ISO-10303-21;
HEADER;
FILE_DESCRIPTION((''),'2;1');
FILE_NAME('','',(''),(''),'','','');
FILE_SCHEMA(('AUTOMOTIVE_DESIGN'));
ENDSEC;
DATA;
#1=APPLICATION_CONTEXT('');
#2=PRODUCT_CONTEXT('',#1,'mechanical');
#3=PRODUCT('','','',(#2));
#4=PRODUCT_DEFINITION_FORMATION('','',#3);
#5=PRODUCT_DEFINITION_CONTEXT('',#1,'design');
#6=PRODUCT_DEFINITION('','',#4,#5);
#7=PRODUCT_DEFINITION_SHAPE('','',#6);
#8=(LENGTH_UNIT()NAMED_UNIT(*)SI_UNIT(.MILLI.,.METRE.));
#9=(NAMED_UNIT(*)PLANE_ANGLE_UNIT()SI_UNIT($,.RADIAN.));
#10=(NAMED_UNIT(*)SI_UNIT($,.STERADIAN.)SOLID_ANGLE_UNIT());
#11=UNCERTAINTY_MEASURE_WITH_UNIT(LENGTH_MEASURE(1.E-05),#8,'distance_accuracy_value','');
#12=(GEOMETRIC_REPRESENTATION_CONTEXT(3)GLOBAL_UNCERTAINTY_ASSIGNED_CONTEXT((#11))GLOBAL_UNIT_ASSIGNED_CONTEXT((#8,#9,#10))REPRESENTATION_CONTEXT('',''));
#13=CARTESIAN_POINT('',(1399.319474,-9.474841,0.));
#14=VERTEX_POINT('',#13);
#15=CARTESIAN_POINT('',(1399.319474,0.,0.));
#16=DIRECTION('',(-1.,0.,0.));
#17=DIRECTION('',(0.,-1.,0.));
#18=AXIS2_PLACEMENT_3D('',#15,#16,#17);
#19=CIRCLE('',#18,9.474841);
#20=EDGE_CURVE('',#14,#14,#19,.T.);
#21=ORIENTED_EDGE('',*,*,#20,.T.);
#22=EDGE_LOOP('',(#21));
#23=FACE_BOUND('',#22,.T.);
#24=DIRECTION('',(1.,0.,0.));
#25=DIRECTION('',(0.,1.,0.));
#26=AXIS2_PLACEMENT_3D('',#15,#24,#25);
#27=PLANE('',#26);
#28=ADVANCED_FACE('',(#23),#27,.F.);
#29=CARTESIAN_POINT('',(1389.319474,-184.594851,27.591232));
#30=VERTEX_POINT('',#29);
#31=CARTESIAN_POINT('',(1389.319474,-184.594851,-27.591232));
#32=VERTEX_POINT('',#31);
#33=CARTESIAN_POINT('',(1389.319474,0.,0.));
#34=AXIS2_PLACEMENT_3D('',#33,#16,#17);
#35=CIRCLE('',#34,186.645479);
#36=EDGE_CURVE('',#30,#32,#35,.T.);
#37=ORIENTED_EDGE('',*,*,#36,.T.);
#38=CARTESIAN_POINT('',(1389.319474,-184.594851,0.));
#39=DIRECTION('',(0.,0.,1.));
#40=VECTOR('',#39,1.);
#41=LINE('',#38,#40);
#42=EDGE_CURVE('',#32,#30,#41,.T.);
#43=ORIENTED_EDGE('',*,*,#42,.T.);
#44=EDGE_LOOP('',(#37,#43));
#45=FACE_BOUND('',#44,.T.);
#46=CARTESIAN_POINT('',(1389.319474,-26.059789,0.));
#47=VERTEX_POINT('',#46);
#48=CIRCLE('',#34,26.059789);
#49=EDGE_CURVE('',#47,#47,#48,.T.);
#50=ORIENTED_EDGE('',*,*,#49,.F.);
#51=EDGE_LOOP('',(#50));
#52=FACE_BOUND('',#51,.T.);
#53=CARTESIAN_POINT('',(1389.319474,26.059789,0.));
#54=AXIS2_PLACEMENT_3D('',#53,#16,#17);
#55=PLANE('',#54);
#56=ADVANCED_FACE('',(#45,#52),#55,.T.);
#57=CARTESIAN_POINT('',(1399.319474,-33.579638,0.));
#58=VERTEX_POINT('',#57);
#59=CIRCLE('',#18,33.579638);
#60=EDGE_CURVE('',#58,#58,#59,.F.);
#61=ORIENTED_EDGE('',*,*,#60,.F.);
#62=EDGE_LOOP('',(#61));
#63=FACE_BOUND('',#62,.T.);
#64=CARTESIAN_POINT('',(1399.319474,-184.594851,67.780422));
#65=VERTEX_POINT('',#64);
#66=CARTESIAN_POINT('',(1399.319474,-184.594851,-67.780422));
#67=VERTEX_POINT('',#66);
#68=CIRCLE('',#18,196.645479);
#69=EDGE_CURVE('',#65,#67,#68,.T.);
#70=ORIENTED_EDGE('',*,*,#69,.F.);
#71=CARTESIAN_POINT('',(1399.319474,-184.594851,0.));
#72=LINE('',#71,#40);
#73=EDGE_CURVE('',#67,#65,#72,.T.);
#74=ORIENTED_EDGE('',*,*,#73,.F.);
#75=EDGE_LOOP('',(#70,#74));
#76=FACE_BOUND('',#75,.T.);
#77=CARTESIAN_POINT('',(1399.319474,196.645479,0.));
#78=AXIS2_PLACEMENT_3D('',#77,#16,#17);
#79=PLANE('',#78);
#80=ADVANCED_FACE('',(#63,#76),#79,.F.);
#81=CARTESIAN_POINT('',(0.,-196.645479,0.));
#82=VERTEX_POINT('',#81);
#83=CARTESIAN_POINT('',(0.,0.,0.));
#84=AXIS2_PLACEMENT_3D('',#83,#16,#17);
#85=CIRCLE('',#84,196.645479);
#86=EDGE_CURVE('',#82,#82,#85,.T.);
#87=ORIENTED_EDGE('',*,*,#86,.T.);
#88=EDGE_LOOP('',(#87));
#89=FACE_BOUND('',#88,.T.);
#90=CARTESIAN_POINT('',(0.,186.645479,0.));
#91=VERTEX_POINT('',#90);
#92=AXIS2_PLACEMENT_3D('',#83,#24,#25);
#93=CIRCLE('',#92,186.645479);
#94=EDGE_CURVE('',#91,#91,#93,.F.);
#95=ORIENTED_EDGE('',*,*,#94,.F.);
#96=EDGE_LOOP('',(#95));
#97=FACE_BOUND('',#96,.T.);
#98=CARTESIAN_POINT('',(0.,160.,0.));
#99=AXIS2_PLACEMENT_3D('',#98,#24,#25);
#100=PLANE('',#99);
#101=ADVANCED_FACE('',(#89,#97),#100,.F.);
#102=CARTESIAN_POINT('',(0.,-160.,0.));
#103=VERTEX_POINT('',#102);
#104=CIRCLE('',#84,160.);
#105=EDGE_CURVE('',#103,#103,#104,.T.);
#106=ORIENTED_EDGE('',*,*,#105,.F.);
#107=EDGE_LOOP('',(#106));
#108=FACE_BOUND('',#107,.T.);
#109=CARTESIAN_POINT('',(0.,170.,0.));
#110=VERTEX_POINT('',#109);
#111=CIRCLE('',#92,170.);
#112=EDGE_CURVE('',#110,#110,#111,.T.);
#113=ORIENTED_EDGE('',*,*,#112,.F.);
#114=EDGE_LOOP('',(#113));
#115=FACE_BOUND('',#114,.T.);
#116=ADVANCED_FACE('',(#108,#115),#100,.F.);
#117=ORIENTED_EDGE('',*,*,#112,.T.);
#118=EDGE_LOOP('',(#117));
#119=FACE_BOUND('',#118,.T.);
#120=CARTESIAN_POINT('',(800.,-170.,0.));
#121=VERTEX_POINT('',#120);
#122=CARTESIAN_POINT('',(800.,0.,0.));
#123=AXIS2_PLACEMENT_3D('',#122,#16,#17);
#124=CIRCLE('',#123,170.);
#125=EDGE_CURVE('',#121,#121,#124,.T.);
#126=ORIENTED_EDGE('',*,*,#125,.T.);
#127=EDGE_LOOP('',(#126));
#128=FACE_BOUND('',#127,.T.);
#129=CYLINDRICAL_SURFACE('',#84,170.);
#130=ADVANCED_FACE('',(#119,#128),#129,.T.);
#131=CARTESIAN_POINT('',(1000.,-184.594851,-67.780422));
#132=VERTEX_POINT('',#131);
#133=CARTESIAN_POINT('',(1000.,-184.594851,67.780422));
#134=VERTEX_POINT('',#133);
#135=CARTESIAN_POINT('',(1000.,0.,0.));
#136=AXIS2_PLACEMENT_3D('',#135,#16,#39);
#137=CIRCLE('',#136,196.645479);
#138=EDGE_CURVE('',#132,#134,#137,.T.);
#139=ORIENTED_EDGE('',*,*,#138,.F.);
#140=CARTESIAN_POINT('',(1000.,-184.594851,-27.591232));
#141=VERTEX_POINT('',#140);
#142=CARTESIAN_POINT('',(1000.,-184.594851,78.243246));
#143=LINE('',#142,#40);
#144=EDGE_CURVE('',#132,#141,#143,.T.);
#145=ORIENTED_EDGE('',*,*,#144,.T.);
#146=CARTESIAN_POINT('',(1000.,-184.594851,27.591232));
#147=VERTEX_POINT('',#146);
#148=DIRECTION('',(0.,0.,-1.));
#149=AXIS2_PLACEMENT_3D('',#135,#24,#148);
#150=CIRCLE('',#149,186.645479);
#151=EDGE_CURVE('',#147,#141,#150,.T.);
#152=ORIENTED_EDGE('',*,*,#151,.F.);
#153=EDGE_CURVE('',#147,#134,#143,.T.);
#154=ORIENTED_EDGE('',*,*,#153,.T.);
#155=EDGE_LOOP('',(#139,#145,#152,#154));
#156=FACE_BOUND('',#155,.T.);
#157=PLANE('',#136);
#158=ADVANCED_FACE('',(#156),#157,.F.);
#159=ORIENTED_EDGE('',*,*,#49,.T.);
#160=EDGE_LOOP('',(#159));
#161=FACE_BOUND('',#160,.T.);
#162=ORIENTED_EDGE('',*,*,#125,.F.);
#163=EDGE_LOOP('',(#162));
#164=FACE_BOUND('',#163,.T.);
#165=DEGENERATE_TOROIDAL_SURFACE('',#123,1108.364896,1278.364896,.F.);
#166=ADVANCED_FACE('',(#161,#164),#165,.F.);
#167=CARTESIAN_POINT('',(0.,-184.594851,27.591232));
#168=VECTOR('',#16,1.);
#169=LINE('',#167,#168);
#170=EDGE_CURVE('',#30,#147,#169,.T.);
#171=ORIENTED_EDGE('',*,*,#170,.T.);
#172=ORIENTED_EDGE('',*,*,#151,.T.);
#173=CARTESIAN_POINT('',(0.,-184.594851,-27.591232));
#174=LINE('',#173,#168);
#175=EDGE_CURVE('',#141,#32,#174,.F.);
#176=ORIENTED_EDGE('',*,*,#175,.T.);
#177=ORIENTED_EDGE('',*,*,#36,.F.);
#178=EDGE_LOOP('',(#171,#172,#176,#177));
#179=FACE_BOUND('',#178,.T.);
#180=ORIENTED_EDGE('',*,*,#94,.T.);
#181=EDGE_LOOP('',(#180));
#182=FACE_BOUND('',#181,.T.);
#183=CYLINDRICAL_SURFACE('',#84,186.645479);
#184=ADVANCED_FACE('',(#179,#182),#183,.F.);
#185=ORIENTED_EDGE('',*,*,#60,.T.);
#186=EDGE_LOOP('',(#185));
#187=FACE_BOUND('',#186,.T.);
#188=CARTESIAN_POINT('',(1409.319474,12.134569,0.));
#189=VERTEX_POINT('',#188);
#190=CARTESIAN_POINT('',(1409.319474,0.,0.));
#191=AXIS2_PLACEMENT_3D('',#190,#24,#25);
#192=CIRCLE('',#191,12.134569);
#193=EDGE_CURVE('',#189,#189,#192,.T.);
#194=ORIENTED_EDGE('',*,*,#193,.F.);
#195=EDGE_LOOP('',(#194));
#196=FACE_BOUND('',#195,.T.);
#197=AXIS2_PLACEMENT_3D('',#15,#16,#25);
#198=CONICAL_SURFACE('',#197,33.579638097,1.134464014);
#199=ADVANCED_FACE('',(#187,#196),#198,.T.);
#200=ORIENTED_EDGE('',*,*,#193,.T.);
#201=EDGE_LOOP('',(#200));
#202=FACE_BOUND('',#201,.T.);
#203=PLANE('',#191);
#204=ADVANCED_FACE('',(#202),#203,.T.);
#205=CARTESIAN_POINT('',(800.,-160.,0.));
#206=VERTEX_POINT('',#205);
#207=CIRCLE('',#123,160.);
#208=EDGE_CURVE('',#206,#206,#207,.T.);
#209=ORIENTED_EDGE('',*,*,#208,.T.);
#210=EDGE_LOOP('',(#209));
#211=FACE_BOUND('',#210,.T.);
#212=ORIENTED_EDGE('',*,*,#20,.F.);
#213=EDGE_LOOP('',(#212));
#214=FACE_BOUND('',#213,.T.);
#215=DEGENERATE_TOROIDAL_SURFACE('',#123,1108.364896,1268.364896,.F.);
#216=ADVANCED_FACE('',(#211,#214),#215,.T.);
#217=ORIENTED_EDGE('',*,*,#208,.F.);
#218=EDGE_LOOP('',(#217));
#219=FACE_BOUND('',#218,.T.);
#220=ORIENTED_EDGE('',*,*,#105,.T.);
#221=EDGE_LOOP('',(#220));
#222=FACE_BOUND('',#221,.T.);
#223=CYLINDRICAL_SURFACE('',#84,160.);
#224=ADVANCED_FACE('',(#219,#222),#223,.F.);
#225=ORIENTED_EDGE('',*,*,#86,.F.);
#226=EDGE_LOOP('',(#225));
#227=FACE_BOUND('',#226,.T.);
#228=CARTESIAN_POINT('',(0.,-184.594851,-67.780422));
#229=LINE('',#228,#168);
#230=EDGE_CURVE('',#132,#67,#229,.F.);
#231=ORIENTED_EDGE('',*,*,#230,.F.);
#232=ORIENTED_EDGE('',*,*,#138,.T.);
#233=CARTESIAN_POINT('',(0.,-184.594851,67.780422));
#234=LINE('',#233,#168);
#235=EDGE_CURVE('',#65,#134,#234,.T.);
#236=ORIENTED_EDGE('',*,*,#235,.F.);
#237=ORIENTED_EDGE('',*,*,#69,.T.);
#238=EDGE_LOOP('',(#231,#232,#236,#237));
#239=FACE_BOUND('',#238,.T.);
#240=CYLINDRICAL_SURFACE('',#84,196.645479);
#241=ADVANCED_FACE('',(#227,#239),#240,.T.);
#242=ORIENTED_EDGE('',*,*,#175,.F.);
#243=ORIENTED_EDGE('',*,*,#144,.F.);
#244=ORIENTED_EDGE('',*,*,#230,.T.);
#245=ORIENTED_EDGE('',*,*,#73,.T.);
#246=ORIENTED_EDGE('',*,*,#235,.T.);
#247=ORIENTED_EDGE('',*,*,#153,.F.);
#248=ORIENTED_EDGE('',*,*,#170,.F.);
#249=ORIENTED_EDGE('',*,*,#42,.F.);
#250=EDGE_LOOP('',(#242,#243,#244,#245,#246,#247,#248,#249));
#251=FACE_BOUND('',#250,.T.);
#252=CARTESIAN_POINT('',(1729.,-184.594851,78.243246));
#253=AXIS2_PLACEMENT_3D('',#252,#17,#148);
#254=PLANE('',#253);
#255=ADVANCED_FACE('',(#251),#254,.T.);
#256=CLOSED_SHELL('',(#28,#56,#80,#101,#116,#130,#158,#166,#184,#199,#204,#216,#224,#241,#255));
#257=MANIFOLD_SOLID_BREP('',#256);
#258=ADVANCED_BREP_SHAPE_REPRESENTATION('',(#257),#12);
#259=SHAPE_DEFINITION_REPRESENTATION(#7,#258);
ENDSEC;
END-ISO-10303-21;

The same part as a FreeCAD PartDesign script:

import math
import FreeCAD as App
import Part
import Sketcher

V = App.Vector
Q = App.Units.Quantity


def add_polygon(sketch, points):
    """Adds a closed chain of lines whose ends are joined by coincident constraints."""
    first, n = sketch.GeometryCount, len(points)
    for a, b in zip(points, points[1:] + points[:1]):
        sketch.addGeometry(Part.LineSegment(App.Vector(*a, 0), App.Vector(*b, 0)), False)
    for i in range(n):
        sketch.addConstraint(Sketcher.Constraint("Coincident", first + i, 2, first + (i + 1) % n, 1))

doc = App.newDocument("Part")
params = doc.addObject("Spreadsheet::Sheet", "Params")
for row, (alias, value) in enumerate([
    ("sketch1_width", "800 mm"),
    ("revolution_angle", "360 deg"),
    ("groove_angle", "360 deg"),
    ("pad1_length", "10 mm"),
    ("pad1_taper", "-65 deg"),
    ("pocket1_length", "436 mm"),
    ("pocket2_length", "729 mm"),
], start=1):
    params.set(f"A{row}", alias)
    params.set(f"B{row}", "=" + value)
    params.setAlias(f"B{row}", alias)

body = doc.addObject("PartDesign::Body", "Body")

# Sketch on XY plane
sketch1 = doc.addObject("Sketcher::SketchObject", "Sketch")
body.addObject(sketch1)
sketch1.AttachmentSupport = (doc.XY_Plane, [""])
sketch1.MapMode = "FlatFace"
sketch1.addGeometry([
    Part.LineSegment(V(0, 160, 0), V(800, 160, 0)),  # 0
    Part.ArcOfCircle(Part.Circle(V(800, -1108.364896, 0), V(0, 0, 1), 1268.364896), math.radians(61.802426), math.radians(90)),  # 1
    Part.LineSegment(V(1399.319474, 9.474841, 0), V(1399.319474, 196.645479, 0)),  # 2
    Part.LineSegment(V(1399.319474, 196.645479, 0), V(0, 196.645479, 0)),  # 3
    Part.LineSegment(V(0, 196.645479, 0), V(0, 160, 0)),  # 4
], False)
sketch1.addConstraint([
    Sketcher.Constraint("Coincident", 0, 2, 1, 2),
    Sketcher.Constraint("Coincident", 1, 1, 2, 1),
    Sketcher.Constraint("Coincident", 2, 2, 3, 1),
    Sketcher.Constraint("Coincident", 3, 2, 4, 1),
    Sketcher.Constraint("Coincident", 4, 2, 0, 1),
    Sketcher.Constraint("Horizontal", 0),
    Sketcher.Constraint("Vertical", 2),
    Sketcher.Constraint("Horizontal", 3),
    Sketcher.Constraint("Vertical", 4),
    Sketcher.Constraint("PointOnObject", 3, 2, -2),
    Sketcher.Constraint("Vertical", 1, 3, 0, 2),
    Sketcher.Constraint("DistanceX", 0, 1, 0, 2, Q("800 mm")),
    Sketcher.Constraint("DistanceY", -1, 1, 0, 2, Q("160 mm")),
    Sketcher.Constraint("Radius", 1, Q("1268.364896 mm")),
    Sketcher.Constraint("DistanceY", 2, 1, 2, 2, Q("187.170638 mm")),
    Sketcher.Constraint("DistanceY", 4, 2, 4, 1, Q("36.645479 mm")),
])
sketch1.setExpression("Constraints[11]", "Params.sketch1_width")
revolution = doc.addObject("PartDesign::Revolution", "Revolution")
body.addObject(revolution)
revolution.Profile = sketch1
revolution.ReferenceAxis = (sketch1, ["H_Axis"])
revolution.setExpression("Angle", "Params.revolution_angle")

# Sketch on XY plane
sketch2 = doc.addObject("Sketcher::SketchObject", "Sketch001")
body.addObject(sketch2)
sketch2.AttachmentSupport = (doc.XY_Plane, [""])
sketch2.MapMode = "FlatFace"
sketch2.addGeometry([
    Part.LineSegment(V(1389.319474, 26.059789, 0), V(1389.319474, 186.645479, 0)),  # 0
    Part.LineSegment(V(1389.319474, 186.645479, 0), V(-316.134238, 186.645479, 0)),  # 1
    Part.LineSegment(V(-316.134238, 186.645479, 0), V(-316.134238, 170, 0)),  # 2
    Part.LineSegment(V(-316.134238, 170, 0), V(800, 170, 0)),  # 3
    Part.ArcOfCircle(Part.Circle(V(800, -1108.364896, 0), V(0, 0, 1), 1278.364896), math.radians(62.548686), math.radians(90)),  # 4
], False)
sketch2.addConstraint([
    Sketcher.Constraint("Coincident", 0, 2, 1, 1),
    Sketcher.Constraint("Coincident", 1, 2, 2, 1),
    Sketcher.Constraint("Coincident", 2, 2, 3, 1),
    Sketcher.Constraint("Coincident", 3, 2, 4, 2),
    Sketcher.Constraint("Coincident", 4, 1, 0, 1),
    Sketcher.Constraint("Vertical", 0),
    Sketcher.Constraint("Horizontal", 1),
    Sketcher.Constraint("Vertical", 2),
    Sketcher.Constraint("Horizontal", 3),
    Sketcher.Constraint("Vertical", 4, 3, 3, 2),
    Sketcher.Constraint("DistanceX", -1, 1, 4, 3, Q("800 mm")),
    Sketcher.Constraint("DistanceY", -1, 1, 2, 2, Q("170 mm")),
    Sketcher.Constraint("Radius", 4, Q("1278.364896 mm")),
    Sketcher.Constraint("DistanceX", 1, 2, 1, 1, Q("1705.453712 mm")),
    Sketcher.Constraint("DistanceY", 0, 1, 0, 2, Q("160.585691 mm")),
    Sketcher.Constraint("DistanceY", 2, 2, 2, 1, Q("16.645479 mm")),
])
groove = doc.addObject("PartDesign::Groove", "Groove")
body.addObject(groove)
groove.Profile = sketch2
groove.ReferenceAxis = (sketch2, ["H_Axis"])
groove.setExpression("Angle", "Params.groove_angle")

# Sketch on YZ plane
sketch3 = doc.addObject("Sketcher::SketchObject", "Sketch002")
body.addObject(sketch3)
sketch3.AttachmentSupport = (doc.YZ_Plane, [""])
sketch3.MapMode = "FlatFace"
sketch3.AttachmentOffset = App.Placement(V(0, 0, 1399.319474), App.Rotation())
sketch3.addGeometry(Part.Circle(V(0, 0, 0), V(0, 0, 1), 33.579638), False)
sketch3.addConstraint([
    Sketcher.Constraint("Coincident", 0, 3, -1, 1),
    Sketcher.Constraint("Diameter", 0, Q("67.159276 mm")),
])
pad1 = doc.addObject("PartDesign::Pad", "Pad")
body.addObject(pad1)
pad1.Profile = sketch3
pad1.setExpression("Length", "Params.pad1_length")
pad1.setExpression("TaperAngle", "Params.pad1_taper")

# Sketch on YZ plane
sketch4 = doc.addObject("Sketcher::SketchObject", "Sketch003")
body.addObject(sketch4)
sketch4.AttachmentSupport = (doc.YZ_Plane, [""])
sketch4.MapMode = "FlatFace"
sketch4.AttachmentOffset = App.Placement(V(0, 0, 1000), App.Rotation())
add_polygon(sketch4, [(-191.217657, -97.176759), (-191.217657, 137.732914), (-250.955992, 99.977692), (-223.778542, -64.615874)])  # lines 0-3
sketch4.addConstraint([
    Sketcher.Constraint("Vertical", 0),
    Sketcher.Constraint("Angle", 3, Q("-45 deg")),
    Sketcher.Constraint("Distance", 2, Q("166.822228 mm")),
    Sketcher.Constraint("DistanceY", 0, 1, 0, 2, Q("234.909673 mm")),
    Sketcher.Constraint("DistanceX", 1, 2, -1, 1, Q("250.955992 mm")),
    Sketcher.Constraint("DistanceY", -1, 1, 1, 2, Q("99.977692 mm")),
    Sketcher.Constraint("DistanceY", 3, 2, -1, 1, Q("97.176759 mm")),
    Sketcher.Constraint("DistanceX", 1, 2, 2, 2, Q("27.177449 mm")),
])
pocket1 = doc.addObject("PartDesign::Pocket", "Pocket")
body.addObject(pocket1)
pocket1.Profile = sketch4
pocket1.setExpression("Length", "Params.pocket1_length")
pocket1.Reversed = True

# Sketch on YZ plane
sketch5 = doc.addObject("Sketcher::SketchObject", "Sketch004")
body.addObject(sketch5)
sketch5.AttachmentSupport = (doc.YZ_Plane, [""])
sketch5.MapMode = "FlatFace"
sketch5.AttachmentOffset = App.Placement(V(0, 0, 1000), App.Rotation())
add_polygon(sketch5, [(-184.594851, -94.83425), (-184.594851, 78.243246), (-208.179834, 83.685935), (-210.719756, -68.709345)])  # lines 0-3
sketch5.addConstraint([
    Sketcher.Constraint("Vertical", 0),
    Sketcher.Constraint("Angle", 3, Q("-45 deg")),
    Sketcher.Constraint("Distance", 1, Q("24.204841 mm")),
    Sketcher.Constraint("DistanceY", 0, 1, 0, 2, Q("173.077497 mm")),
    Sketcher.Constraint("DistanceX", 0, 2, -1, 1, Q("184.594851 mm")),
    Sketcher.Constraint("DistanceY", 3, 2, -1, 1, Q("94.83425 mm")),
    Sketcher.Constraint("DistanceY", 0, 2, 1, 2, Q("5.442689 mm")),
    Sketcher.Constraint("DistanceY", 2, 2, 0, 2, Q("146.952591 mm")),
])
pocket2 = doc.addObject("PartDesign::Pocket", "Pocket001")
body.addObject(pocket2)
pocket2.Profile = sketch5
pocket2.setExpression("Length", "Params.pocket2_length")
pocket2.Reversed = True

doc.recompute()
